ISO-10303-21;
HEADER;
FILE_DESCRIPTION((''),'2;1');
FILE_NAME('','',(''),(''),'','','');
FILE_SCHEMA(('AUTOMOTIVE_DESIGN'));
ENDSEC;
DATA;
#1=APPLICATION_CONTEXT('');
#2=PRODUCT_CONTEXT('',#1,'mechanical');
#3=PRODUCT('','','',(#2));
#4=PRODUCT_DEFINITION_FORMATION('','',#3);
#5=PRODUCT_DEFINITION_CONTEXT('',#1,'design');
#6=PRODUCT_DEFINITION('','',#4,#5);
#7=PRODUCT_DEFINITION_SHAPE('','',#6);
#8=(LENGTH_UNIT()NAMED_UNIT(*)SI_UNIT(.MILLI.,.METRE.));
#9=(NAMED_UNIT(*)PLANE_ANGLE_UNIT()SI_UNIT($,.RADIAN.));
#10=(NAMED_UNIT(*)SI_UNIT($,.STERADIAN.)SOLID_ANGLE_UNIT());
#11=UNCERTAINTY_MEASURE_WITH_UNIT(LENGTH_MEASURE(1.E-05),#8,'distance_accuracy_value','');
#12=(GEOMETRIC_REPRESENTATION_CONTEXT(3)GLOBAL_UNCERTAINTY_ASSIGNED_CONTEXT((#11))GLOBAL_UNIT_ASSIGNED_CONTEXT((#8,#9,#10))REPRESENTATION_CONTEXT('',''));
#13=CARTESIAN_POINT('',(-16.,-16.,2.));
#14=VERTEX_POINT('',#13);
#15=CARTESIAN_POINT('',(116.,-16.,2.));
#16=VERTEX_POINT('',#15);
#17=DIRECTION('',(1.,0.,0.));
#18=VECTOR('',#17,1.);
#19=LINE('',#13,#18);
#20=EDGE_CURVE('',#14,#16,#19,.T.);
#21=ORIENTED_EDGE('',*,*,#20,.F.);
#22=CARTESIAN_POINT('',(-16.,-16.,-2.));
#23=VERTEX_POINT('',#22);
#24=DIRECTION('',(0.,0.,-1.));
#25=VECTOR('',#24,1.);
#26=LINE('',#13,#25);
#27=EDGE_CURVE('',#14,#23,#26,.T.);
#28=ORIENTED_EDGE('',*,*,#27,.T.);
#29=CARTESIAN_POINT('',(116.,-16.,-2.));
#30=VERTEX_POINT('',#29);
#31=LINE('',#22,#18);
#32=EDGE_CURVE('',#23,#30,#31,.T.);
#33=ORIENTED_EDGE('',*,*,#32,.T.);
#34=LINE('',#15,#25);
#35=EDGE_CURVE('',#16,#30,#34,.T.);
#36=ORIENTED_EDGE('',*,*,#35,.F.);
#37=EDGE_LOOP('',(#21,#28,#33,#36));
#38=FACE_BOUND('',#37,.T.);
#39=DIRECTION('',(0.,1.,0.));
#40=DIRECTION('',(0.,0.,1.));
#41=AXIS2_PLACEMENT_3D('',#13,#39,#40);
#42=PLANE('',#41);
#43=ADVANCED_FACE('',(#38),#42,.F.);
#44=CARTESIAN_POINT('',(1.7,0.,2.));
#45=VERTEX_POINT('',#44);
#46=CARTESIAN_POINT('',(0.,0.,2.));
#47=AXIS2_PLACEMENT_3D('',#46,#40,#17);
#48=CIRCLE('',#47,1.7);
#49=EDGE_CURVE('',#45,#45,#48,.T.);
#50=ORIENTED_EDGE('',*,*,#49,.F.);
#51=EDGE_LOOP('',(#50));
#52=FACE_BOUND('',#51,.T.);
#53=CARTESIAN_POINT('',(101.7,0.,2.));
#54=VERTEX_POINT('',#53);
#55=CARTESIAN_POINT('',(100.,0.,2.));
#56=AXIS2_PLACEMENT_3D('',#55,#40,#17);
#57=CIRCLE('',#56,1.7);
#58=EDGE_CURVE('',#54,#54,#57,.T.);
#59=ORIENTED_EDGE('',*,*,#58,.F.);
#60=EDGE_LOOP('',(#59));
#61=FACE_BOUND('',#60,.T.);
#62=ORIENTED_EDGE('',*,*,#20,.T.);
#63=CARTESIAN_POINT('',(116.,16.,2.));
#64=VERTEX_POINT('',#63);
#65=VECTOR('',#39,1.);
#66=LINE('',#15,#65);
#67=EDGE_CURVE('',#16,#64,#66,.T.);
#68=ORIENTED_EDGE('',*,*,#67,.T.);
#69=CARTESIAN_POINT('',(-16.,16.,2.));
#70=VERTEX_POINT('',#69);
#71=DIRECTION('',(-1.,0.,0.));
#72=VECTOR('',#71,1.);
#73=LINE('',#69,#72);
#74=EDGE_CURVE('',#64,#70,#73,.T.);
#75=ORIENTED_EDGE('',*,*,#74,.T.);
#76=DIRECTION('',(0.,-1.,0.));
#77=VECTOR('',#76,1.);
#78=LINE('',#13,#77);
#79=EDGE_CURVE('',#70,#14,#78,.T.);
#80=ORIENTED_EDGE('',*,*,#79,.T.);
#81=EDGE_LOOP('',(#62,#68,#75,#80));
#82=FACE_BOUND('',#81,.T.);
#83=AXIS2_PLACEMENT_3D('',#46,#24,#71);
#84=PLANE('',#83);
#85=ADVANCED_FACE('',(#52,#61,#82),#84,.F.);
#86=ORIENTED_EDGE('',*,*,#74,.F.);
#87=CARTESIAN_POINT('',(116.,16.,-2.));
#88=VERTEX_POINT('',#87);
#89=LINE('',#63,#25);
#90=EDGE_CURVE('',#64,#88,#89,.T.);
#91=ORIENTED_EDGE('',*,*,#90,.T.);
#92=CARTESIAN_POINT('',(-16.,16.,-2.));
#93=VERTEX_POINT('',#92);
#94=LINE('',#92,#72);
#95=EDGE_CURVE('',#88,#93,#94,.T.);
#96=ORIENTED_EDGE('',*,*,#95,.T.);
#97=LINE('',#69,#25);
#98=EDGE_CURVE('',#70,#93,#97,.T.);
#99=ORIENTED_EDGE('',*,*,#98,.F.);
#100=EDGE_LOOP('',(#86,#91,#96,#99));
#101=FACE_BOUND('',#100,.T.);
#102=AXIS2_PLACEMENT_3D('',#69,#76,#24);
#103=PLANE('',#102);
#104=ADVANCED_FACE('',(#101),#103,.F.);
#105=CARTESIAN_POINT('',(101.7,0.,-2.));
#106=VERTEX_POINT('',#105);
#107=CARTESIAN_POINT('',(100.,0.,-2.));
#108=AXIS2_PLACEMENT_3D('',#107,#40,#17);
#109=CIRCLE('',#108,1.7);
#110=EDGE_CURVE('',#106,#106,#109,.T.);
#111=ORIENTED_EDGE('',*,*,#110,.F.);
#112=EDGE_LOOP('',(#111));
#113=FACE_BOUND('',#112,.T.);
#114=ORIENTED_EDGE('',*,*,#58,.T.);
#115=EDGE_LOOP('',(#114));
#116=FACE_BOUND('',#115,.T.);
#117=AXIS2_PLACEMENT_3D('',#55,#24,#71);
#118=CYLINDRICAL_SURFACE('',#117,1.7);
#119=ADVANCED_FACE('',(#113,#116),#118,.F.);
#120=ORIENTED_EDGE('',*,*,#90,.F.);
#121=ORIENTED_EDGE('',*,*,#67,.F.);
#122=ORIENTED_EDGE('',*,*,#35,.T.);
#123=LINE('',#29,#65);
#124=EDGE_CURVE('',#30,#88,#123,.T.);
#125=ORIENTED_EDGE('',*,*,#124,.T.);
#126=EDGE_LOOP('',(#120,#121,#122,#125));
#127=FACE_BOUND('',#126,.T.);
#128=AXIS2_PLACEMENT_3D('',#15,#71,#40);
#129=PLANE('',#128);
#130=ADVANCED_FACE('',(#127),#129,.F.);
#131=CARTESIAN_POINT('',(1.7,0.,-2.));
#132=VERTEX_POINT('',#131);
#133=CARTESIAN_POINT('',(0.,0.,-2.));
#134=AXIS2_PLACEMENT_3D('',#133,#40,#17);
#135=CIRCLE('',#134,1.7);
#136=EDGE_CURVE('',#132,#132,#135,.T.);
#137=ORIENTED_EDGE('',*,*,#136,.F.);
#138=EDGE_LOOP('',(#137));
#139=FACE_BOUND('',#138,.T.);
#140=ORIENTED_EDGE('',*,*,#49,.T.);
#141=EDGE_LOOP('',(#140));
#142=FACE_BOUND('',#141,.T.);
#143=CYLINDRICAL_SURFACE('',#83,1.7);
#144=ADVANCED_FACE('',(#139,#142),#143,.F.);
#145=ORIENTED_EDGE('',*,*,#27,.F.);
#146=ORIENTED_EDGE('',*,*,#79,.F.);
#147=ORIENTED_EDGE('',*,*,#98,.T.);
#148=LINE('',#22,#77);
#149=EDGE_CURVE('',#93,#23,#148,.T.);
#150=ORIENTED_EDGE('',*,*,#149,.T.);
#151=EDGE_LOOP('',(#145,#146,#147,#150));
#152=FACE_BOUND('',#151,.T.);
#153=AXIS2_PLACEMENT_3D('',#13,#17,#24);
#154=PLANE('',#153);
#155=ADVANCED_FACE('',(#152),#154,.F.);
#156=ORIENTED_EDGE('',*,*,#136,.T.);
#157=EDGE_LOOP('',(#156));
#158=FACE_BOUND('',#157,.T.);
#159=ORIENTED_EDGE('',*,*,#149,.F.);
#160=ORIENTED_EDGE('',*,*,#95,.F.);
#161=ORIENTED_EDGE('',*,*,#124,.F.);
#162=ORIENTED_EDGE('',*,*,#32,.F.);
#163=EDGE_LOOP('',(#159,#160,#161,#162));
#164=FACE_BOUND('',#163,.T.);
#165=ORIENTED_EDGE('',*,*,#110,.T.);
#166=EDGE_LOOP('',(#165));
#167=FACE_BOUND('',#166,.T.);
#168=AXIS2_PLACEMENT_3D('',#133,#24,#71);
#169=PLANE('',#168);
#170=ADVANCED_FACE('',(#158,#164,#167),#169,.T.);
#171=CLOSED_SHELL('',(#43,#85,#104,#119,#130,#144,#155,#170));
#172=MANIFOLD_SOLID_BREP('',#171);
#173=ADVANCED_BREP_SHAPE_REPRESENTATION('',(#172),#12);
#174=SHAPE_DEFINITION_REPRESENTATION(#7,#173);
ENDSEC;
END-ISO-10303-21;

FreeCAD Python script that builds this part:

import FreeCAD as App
import Part
import Sketcher
from FreeCAD import Vector


def add_polygon(sketch, points):
    """Adds a closed chain of lines whose ends are joined by coincident constraints."""
    first, n = sketch.GeometryCount, len(points)
    for a, b in zip(points, points[1:] + points[:1]):
        sketch.addGeometry(Part.LineSegment(App.Vector(*a, 0), App.Vector(*b, 0)), False)
    for i in range(n):
        sketch.addConstraint(Sketcher.Constraint("Coincident", first + i, 2, first + (i + 1) % n, 1))

doc = App.newDocument("Part")
params = doc.addObject("Spreadsheet::Sheet", "Params")
for row, (alias, value) in enumerate([
    ("sketch1_diameter", "3.4 mm"),
    ("sketch1_width", "132 mm"),
    ("sketch1_height", "32 mm"),
    ("pad1_length", "4 mm"),
], start=1):
    params.set(f"A{row}", alias)
    params.set(f"B{row}", "=" + value)
    params.setAlias(f"B{row}", alias)

body = doc.addObject("PartDesign::Body", "Body")

# Sketch on XY plane
sketch1 = body.newObject("Sketcher::SketchObject", "Sketch")
sketch1.AttachmentSupport = (doc.getObject("XY_Plane"), [""])
sketch1.MapMode = "FlatFace"
add_polygon(sketch1, [(-16, 16), (-16, -16), (116, -16), (116, 16)])  # lines 0-3
sketch1.addGeometry(Part.Circle(Vector(0, 0, 0), Vector(0, 0, 1), 1.7), False)  # 4
sketch1.addGeometry(Part.Circle(Vector(100, 0, 0), Vector(0, 0, 1), 1.7), False)  # 5
sketch1.addConstraint(Sketcher.Constraint("Vertical", 0))
sketch1.addConstraint(Sketcher.Constraint("Horizontal", 1))
sketch1.addConstraint(Sketcher.Constraint("Vertical", 2))
sketch1.addConstraint(Sketcher.Constraint("Horizontal", 3))
sketch1.addConstraint(Sketcher.Constraint("Coincident", 4, 3, -1, 1))
sketch1.addConstraint(Sketcher.Constraint("Equal", 4, 5))
sketch1.addConstraint(Sketcher.Constraint("PointOnObject", 5, 3, -1))
sketch1.addConstraint(Sketcher.Constraint("Diameter", 4, 3.4))
sketch1.addConstraint(Sketcher.Constraint("DistanceX", 1, 1, 1, 2, 132.0))
sketch1.addConstraint(Sketcher.Constraint("DistanceY", 0, 2, 0, 1, 32.0))
sketch1.addConstraint(Sketcher.Constraint("DistanceX", -1, 1, 5, 3, 100.0))
sketch1.addConstraint(Sketcher.Constraint("DistanceX", 0, 2, -1, 1, 16.0))
sketch1.addConstraint(Sketcher.Constraint("DistanceY", 0, 2, -1, 1, 16.0))
sketch1.setExpression("Constraints[11]", "Params.sketch1_diameter")
sketch1.setExpression("Constraints[12]", "Params.sketch1_width")
sketch1.setExpression("Constraints[13]", "Params.sketch1_height")
pad1 = body.newObject("PartDesign::Pad", "Pad")
pad1.Profile = sketch1
pad1.setExpression("Length", "Params.pad1_length")
pad1.Midplane = True

doc.recompute()
